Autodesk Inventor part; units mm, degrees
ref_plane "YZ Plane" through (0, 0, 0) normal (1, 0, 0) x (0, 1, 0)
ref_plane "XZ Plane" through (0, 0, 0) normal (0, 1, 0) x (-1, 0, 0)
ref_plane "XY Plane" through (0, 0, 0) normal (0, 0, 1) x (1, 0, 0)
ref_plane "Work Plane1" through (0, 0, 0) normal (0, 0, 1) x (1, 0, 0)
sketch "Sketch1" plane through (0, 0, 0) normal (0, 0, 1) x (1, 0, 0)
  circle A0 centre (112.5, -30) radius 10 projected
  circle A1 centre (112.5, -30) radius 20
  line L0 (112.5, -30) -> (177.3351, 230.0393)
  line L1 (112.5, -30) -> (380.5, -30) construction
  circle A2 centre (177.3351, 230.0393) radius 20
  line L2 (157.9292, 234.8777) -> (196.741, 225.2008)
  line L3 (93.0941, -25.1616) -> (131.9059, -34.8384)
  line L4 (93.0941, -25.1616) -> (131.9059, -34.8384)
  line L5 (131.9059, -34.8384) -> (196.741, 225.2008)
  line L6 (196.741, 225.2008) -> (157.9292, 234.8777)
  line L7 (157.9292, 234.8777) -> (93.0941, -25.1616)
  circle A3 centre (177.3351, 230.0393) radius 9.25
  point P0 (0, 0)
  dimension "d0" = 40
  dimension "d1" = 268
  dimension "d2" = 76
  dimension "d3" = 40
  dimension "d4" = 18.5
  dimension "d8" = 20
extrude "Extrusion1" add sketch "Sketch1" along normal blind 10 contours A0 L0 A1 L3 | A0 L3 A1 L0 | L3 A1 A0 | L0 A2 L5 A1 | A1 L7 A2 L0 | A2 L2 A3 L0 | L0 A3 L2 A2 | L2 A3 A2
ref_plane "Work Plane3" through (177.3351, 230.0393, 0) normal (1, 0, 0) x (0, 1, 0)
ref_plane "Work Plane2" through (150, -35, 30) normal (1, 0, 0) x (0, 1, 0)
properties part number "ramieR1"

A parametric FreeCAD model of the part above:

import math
import FreeCAD as App
import Part
import Sketcher
from FreeCAD import Vector
Q = App.Units.Quantity

doc = App.newDocument("Part")
body = doc.addObject("PartDesign::Body", "Body")

# Sketch on XY plane
sketch1 = doc.addObject("Sketcher::SketchObject", "Sketch")
body.addObject(sketch1)
sketch1.AttachmentSupport = (doc.XY_Plane, [""])
sketch1.MapMode = "FlatFace"
sketch1.addGeometry(Part.LineSegment(Vector(132, -35, 0), Vector(197, 225, 0)), False)
sketch1.addGeometry(Part.ArcOfCircle(Part.Circle(Vector(177, 230, 0), Vector(0, 0, 1), 20), math.radians(-14), math.radians(166)), False)
sketch1.addGeometry(Part.LineSegment(Vector(158, 235, 0), Vector(93, -25, 0)), False)
sketch1.addGeometry(Part.ArcOfCircle(Part.Circle(Vector(112, -30, 0), Vector(0, 0, 1), 20), math.radians(166), math.radians(346)), False)
sketch1.addGeometry(Part.Circle(Vector(112, -30, 0), Vector(0, 0, 1), 10), False)
sketch1.addGeometry(Part.Circle(Vector(177, 230, 0), Vector(0, 0, 1), 9), False)
sketch1.addConstraint(Sketcher.Constraint("Tangent", 0, 2, 1, 1))
sketch1.addConstraint(Sketcher.Constraint("Tangent", 1, 2, 2, 1))
sketch1.addConstraint(Sketcher.Constraint("Tangent", 2, 2, 3, 1))
sketch1.addConstraint(Sketcher.Constraint("Tangent", 3, 2, 0, 1))
sketch1.addConstraint(Sketcher.Constraint("Coincident", 4, 3, 3, 3))
sketch1.addConstraint(Sketcher.Constraint("Coincident", 5, 3, 1, 3))
sketch1.addConstraint(Sketcher.Constraint("Equal", 1, 3))
sketch1.addConstraint(Sketcher.Constraint("Diameter", 4, 20.0))
sketch1.addConstraint(Sketcher.Constraint("Radius", 1, 20.0))
sketch1.addConstraint(Sketcher.Constraint("Diameter", 5, 18.5))
sketch1.addConstraint(Sketcher.Constraint("Angle", 0, Q("76 deg")))
sketch1.addConstraint(Sketcher.Constraint("Distance", 0, 268.0))
sketch1.addConstraint(Sketcher.Constraint("DistanceY", 3, 3, -1, 1, 30.0))
sketch1.addConstraint(Sketcher.Constraint("DistanceX", -1, 1, 3, 3, 112.5))
pad1 = doc.addObject("PartDesign::Pad", "Pad")
body.addObject(pad1)
pad1.Profile = sketch1
pad1.Length = 10

doc.recompute()
